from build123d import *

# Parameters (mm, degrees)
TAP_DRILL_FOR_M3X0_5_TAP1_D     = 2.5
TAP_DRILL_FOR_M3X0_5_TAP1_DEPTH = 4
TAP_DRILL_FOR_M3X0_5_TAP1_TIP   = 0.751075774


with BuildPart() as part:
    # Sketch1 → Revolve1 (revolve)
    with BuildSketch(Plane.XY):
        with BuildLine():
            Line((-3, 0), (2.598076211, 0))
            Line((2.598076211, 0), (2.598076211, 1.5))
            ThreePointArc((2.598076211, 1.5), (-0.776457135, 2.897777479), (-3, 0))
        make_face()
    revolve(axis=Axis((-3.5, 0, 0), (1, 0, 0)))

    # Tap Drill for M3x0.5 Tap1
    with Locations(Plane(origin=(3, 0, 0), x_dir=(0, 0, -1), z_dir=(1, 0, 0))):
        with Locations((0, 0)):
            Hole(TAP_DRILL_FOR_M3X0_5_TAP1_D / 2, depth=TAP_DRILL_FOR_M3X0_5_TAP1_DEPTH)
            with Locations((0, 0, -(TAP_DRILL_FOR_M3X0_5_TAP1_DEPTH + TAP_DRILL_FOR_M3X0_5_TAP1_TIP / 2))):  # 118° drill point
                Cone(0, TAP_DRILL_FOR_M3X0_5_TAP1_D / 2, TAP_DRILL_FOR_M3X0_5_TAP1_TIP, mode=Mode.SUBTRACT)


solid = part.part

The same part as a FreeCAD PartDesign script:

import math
import FreeCAD as App
import Part
import Sketcher
from FreeCAD import Vector

doc = App.newDocument("Part")
body = doc.addObject("PartDesign::Body", "Body")

sketch1 = body.newObject("Sketcher::SketchObject", "Sketch")
sketch1.AttachmentSupport = (doc.getObject("XY_Plane"), [""])
sketch1.MapMode = "FlatFace"
sketch1.addGeometry([
    Part.LineSegment(Vector(-3, 0, 0), Vector(2.598076, 0, 0)),
    Part.LineSegment(Vector(2.598076, 0, 0), Vector(2.598076, 1.5, 0)),
    Part.ArcOfCircle(Part.Circle(Vector(0, 0, 0), Vector(0, 0, 1), 3), math.radians(30), math.radians(180)),
], False)
sketch1.addConstraint([
    Sketcher.Constraint("Coincident", 0, 2, 1, 1),
    Sketcher.Constraint("Coincident", 1, 2, 2, 1),
    Sketcher.Constraint("Coincident", 2, 2, 0, 1),
    Sketcher.Constraint("Horizontal", 0),
    Sketcher.Constraint("Vertical", 1),
    Sketcher.Constraint("Coincident", 2, 3, -1, 1),
    Sketcher.Constraint("PointOnObject", 0, 2, -1),
    Sketcher.Constraint("Radius", 2, 3.0),
    Sketcher.Constraint("DistanceY", 1, 1, 1, 2, 1.5),
])
revolution = body.newObject("PartDesign::Revolution", "Revolution")
revolution.Profile = sketch1
revolution.ReferenceAxis = (sketch1, ["H_Axis"])
revolution.Angle = 360

sketch2 = body.newObject("Sketcher::SketchObject", "Sketch001")
sketch2.AttachmentSupport = (doc.getObject("YZ_Plane"), [""])
sketch2.MapMode = "FlatFace"
sketch2.AttachmentOffset = App.Placement(Vector(0, 0, 3), App.Rotation())
sketch2.addGeometry(Part.Circle(Vector(0, 0, 0), Vector(0, 0, 1), 1.25), False)
sketch2.addConstraint([
    Sketcher.Constraint("Coincident", 0, 3, -1, 1),
    Sketcher.Constraint("Diameter", 0, 2.5),
])
doc.recompute()
hole = body.newObject("PartDesign::Hole", "Hole")
hole.Profile = sketch2
hole.ThreadType = "None"
hole.Diameter = 2.5
hole.DepthType = "Dimension"
hole.Depth = 4
hole.DrillPoint = "Angled"
hole.DrillPointAngle = 118

doc.recompute()
